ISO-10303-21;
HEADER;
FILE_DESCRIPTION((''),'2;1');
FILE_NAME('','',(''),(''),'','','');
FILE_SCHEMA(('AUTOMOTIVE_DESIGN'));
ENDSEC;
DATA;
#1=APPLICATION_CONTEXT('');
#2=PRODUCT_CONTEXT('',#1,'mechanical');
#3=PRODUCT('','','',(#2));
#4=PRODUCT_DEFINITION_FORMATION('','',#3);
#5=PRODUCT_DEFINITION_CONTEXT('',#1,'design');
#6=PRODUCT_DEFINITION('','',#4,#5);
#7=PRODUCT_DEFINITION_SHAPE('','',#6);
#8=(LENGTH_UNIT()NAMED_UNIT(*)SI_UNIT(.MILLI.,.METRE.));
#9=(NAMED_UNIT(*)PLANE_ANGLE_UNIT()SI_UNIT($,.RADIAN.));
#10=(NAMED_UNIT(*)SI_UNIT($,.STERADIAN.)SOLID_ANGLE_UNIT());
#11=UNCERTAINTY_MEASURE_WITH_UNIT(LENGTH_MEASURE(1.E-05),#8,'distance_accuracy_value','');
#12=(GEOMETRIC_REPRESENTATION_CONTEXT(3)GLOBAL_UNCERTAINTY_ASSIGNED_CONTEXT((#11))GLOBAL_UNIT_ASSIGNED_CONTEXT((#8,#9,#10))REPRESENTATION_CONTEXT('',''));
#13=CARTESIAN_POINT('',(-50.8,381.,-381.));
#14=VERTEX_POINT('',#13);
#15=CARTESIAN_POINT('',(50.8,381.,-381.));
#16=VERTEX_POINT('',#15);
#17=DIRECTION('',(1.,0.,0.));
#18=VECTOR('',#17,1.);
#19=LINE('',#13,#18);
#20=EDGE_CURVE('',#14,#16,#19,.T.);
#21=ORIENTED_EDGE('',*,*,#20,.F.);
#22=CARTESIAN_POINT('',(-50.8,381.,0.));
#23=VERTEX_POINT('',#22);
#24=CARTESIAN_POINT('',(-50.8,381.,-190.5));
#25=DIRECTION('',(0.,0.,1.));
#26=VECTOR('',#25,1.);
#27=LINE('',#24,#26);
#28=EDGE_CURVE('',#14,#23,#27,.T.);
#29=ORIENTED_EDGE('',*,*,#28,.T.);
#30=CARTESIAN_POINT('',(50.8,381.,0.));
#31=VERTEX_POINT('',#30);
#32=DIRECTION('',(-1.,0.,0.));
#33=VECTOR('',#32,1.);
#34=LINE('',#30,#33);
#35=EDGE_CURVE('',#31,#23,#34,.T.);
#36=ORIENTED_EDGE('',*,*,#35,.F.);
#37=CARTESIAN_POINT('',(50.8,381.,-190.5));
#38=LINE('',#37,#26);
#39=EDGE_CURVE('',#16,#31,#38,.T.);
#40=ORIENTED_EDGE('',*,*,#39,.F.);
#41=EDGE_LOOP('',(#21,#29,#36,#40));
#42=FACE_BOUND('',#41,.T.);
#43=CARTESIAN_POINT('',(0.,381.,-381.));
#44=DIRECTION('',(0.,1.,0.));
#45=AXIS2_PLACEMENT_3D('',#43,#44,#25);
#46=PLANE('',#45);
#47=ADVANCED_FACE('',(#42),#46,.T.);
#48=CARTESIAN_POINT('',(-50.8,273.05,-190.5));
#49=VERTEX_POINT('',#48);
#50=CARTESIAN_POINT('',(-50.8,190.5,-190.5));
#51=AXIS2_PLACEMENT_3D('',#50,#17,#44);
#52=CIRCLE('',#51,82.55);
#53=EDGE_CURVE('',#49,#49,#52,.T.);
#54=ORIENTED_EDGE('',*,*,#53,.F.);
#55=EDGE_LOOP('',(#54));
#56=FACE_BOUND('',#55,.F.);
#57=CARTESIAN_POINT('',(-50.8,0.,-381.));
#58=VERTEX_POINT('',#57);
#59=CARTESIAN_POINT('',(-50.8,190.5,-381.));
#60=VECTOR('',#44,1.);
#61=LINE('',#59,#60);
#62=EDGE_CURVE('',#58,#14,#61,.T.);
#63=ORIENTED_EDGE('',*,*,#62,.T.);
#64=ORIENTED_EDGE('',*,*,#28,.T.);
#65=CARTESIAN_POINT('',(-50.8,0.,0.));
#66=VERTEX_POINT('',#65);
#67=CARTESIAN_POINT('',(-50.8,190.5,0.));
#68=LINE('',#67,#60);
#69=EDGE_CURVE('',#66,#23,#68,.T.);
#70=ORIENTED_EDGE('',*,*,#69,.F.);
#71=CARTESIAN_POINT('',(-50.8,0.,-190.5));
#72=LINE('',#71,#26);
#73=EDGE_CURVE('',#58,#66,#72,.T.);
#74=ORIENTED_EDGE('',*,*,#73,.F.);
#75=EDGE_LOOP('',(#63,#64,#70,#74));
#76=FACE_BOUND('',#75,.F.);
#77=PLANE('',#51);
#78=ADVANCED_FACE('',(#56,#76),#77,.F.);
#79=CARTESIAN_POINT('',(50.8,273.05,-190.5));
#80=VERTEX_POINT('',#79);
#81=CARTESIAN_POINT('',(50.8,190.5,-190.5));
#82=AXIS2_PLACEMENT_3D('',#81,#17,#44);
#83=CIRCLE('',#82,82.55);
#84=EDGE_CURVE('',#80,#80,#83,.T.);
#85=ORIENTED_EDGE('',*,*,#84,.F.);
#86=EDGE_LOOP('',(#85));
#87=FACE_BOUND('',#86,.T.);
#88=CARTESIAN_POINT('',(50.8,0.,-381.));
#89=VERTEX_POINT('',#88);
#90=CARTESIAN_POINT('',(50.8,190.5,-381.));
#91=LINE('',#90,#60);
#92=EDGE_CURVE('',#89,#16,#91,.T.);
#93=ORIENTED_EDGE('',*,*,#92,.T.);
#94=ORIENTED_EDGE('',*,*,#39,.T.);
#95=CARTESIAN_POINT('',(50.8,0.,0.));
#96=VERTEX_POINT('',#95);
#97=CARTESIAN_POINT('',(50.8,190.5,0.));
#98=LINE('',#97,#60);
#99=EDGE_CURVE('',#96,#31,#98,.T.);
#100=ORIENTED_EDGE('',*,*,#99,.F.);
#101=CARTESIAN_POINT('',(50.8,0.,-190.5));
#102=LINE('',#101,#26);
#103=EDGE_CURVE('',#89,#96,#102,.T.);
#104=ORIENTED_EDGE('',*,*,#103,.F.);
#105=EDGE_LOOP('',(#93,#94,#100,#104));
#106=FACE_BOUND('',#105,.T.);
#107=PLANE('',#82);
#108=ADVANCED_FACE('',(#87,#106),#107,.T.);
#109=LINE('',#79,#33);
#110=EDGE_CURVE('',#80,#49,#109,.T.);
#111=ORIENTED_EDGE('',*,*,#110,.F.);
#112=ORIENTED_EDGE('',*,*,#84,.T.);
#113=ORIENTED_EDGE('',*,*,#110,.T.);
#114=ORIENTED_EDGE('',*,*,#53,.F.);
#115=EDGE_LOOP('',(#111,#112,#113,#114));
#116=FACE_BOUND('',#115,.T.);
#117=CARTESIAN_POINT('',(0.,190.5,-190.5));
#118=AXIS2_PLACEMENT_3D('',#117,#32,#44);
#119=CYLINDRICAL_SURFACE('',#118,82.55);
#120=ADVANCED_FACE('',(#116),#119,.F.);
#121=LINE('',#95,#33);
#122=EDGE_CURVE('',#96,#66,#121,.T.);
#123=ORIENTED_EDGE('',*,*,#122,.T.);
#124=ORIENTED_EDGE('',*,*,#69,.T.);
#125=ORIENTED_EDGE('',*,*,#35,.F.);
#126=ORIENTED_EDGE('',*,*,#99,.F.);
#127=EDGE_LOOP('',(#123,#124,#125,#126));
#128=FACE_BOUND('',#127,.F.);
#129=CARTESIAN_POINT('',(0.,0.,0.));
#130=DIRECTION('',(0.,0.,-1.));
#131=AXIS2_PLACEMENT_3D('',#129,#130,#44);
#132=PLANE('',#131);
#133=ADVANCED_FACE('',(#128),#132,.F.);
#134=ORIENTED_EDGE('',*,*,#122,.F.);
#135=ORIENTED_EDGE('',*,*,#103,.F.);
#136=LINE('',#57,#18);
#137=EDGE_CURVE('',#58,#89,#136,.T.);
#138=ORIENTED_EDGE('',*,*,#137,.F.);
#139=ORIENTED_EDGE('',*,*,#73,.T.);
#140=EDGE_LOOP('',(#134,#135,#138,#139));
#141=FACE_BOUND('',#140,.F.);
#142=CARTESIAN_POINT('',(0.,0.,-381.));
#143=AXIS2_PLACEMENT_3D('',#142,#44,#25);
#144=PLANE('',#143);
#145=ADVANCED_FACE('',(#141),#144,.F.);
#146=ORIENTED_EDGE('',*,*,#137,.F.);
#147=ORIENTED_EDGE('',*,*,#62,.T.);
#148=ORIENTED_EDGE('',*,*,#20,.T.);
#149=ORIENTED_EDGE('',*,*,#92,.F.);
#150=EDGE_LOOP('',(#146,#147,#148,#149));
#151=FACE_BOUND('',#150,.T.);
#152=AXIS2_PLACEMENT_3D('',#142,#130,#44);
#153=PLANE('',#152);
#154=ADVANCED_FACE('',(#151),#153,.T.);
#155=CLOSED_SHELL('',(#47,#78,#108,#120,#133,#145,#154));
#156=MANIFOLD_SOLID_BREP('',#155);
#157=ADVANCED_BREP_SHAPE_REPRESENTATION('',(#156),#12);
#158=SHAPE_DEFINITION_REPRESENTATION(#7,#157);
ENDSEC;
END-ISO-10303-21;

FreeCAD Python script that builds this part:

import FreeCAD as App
import Part
import Sketcher
from FreeCAD import Vector
Q = App.Units.Quantity

doc = App.newDocument("Part")
body = doc.addObject("PartDesign::Body", "Body")

# Sketch on YZ plane
sketch1 = body.newObject("Sketcher::SketchObject", "Sketch")
sketch1.AttachmentSupport = (doc.getObject("YZ_Plane"), [""])
sketch1.MapMode = "FlatFace"
sketch1.addGeometry(Part.LineSegment(Vector(0, 0, 0), Vector(0, -381, 0)), False)
sketch1.addGeometry(Part.LineSegment(Vector(0, -381, 0), Vector(381, -381, 0)), False)
sketch1.addGeometry(Part.LineSegment(Vector(381, -381, 0), Vector(381, 0, 0)), False)
sketch1.addGeometry(Part.LineSegment(Vector(381, 0, 0), Vector(0, 0, 0)), False)
sketch1.addGeometry(Part.Circle(Vector(190.5, -190.5, 0), Vector(0, 0, 1), 82.55), False)
sketch1.addConstraint(Sketcher.Constraint("Coincident", 0, 2, 1, 1))
sketch1.addConstraint(Sketcher.Constraint("Coincident", 1, 2, 2, 1))
sketch1.addConstraint(Sketcher.Constraint("Coincident", 2, 2, 3, 1))
sketch1.addConstraint(Sketcher.Constraint("Coincident", 3, 2, 0, 1))
sketch1.addConstraint(Sketcher.Constraint("Vertical", 0))
sketch1.addConstraint(Sketcher.Constraint("Horizontal", 1))
sketch1.addConstraint(Sketcher.Constraint("Vertical", 2))
sketch1.addConstraint(Sketcher.Constraint("Horizontal", 3))
sketch1.addConstraint(Sketcher.Constraint("Coincident", 3, 2, -1, 1))
sketch1.addConstraint(Sketcher.Constraint("Equal", 3, 0))
sketch1.addConstraint(Sketcher.Constraint("Diameter", 4, Q("6.5 in")))
sketch1.addConstraint(Sketcher.Constraint("DistanceX", 1, 1, 1, 2, Q("15 in")))
sketch1.addConstraint(Sketcher.Constraint("DistanceX", -1, 1, 4, 3, Q("7.5 in")))
sketch1.addConstraint(Sketcher.Constraint("DistanceY", 4, 3, -1, 1, Q("7.5 in")))
pad1 = body.newObject("PartDesign::Pad", "Pad")
pad1.Profile = sketch1
pad1.Length = Q("4 in")
pad1.Midplane = True

doc.recompute()
